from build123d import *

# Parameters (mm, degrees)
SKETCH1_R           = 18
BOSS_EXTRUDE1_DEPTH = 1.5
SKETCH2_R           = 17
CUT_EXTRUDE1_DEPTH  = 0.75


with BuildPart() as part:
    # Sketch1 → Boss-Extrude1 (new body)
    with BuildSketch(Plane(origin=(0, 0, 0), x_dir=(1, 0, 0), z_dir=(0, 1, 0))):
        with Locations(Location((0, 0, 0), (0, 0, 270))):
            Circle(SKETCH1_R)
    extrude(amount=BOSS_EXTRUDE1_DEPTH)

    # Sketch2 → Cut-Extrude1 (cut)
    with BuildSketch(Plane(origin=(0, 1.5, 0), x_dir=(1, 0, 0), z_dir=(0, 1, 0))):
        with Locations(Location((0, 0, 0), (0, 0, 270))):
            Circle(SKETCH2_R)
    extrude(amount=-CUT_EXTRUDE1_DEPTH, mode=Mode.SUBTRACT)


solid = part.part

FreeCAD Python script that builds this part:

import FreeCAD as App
import Part
import Sketcher

doc = App.newDocument("Part")
params = doc.addObject("Spreadsheet::Sheet", "Params")
for row, (alias, value) in enumerate([
    ("sketch1_diameter", "36 mm"),
    ("pad1_length", "1.5 mm"),
    ("sketch2_diameter", "34 mm"),
    ("pocket1_length", "0.75 mm"),
], start=1):
    params.set(f"A{row}", alias)
    params.set(f"B{row}", "=" + value)
    params.setAlias(f"B{row}", alias)

body = doc.addObject("PartDesign::Body", "Body")

# Sketch on XZ plane
sketch1 = body.newObject("Sketcher::SketchObject", "Sketch")
sketch1.AttachmentSupport = (doc.getObject("XZ_Plane"), [""])
sketch1.MapMode = "FlatFace"
sketch1.addGeometry(Part.Circle(App.Vector(0, 0, 0), App.Vector(0, 0, 1), 18), False)
sketch1.addConstraint([
    Sketcher.Constraint("Coincident", 0, 3, -1, 1),
    Sketcher.Constraint("Diameter", 0, 36.0),
])
sketch1.setExpression("Constraints[1]", "Params.sketch1_diameter")
pad1 = body.newObject("PartDesign::Pad", "Pad")
pad1.Profile = sketch1
pad1.setExpression("Length", "Params.pad1_length")
pad1.Reversed = True

# Sketch on XZ plane
sketch2 = body.newObject("Sketcher::SketchObject", "Sketch001")
sketch2.AttachmentSupport = (doc.getObject("XZ_Plane"), [""])
sketch2.MapMode = "FlatFace"
sketch2.AttachmentOffset = App.Placement(App.Vector(0, 0, -1.5), App.Rotation())
sketch2.addGeometry(Part.Circle(App.Vector(0, 0, 0), App.Vector(0, 0, 1), 17), False)
sketch2.addConstraint([
    Sketcher.Constraint("Coincident", 0, 3, -1, 1),
    Sketcher.Constraint("Diameter", 0, 34.0),
])
sketch2.setExpression("Constraints[1]", "Params.sketch2_diameter")
pocket1 = body.newObject("PartDesign::Pocket", "Pocket")
pocket1.Profile = sketch2
pocket1.setExpression("Length", "Params.pocket1_length")
pocket1.Reversed = True

doc.recompute()
